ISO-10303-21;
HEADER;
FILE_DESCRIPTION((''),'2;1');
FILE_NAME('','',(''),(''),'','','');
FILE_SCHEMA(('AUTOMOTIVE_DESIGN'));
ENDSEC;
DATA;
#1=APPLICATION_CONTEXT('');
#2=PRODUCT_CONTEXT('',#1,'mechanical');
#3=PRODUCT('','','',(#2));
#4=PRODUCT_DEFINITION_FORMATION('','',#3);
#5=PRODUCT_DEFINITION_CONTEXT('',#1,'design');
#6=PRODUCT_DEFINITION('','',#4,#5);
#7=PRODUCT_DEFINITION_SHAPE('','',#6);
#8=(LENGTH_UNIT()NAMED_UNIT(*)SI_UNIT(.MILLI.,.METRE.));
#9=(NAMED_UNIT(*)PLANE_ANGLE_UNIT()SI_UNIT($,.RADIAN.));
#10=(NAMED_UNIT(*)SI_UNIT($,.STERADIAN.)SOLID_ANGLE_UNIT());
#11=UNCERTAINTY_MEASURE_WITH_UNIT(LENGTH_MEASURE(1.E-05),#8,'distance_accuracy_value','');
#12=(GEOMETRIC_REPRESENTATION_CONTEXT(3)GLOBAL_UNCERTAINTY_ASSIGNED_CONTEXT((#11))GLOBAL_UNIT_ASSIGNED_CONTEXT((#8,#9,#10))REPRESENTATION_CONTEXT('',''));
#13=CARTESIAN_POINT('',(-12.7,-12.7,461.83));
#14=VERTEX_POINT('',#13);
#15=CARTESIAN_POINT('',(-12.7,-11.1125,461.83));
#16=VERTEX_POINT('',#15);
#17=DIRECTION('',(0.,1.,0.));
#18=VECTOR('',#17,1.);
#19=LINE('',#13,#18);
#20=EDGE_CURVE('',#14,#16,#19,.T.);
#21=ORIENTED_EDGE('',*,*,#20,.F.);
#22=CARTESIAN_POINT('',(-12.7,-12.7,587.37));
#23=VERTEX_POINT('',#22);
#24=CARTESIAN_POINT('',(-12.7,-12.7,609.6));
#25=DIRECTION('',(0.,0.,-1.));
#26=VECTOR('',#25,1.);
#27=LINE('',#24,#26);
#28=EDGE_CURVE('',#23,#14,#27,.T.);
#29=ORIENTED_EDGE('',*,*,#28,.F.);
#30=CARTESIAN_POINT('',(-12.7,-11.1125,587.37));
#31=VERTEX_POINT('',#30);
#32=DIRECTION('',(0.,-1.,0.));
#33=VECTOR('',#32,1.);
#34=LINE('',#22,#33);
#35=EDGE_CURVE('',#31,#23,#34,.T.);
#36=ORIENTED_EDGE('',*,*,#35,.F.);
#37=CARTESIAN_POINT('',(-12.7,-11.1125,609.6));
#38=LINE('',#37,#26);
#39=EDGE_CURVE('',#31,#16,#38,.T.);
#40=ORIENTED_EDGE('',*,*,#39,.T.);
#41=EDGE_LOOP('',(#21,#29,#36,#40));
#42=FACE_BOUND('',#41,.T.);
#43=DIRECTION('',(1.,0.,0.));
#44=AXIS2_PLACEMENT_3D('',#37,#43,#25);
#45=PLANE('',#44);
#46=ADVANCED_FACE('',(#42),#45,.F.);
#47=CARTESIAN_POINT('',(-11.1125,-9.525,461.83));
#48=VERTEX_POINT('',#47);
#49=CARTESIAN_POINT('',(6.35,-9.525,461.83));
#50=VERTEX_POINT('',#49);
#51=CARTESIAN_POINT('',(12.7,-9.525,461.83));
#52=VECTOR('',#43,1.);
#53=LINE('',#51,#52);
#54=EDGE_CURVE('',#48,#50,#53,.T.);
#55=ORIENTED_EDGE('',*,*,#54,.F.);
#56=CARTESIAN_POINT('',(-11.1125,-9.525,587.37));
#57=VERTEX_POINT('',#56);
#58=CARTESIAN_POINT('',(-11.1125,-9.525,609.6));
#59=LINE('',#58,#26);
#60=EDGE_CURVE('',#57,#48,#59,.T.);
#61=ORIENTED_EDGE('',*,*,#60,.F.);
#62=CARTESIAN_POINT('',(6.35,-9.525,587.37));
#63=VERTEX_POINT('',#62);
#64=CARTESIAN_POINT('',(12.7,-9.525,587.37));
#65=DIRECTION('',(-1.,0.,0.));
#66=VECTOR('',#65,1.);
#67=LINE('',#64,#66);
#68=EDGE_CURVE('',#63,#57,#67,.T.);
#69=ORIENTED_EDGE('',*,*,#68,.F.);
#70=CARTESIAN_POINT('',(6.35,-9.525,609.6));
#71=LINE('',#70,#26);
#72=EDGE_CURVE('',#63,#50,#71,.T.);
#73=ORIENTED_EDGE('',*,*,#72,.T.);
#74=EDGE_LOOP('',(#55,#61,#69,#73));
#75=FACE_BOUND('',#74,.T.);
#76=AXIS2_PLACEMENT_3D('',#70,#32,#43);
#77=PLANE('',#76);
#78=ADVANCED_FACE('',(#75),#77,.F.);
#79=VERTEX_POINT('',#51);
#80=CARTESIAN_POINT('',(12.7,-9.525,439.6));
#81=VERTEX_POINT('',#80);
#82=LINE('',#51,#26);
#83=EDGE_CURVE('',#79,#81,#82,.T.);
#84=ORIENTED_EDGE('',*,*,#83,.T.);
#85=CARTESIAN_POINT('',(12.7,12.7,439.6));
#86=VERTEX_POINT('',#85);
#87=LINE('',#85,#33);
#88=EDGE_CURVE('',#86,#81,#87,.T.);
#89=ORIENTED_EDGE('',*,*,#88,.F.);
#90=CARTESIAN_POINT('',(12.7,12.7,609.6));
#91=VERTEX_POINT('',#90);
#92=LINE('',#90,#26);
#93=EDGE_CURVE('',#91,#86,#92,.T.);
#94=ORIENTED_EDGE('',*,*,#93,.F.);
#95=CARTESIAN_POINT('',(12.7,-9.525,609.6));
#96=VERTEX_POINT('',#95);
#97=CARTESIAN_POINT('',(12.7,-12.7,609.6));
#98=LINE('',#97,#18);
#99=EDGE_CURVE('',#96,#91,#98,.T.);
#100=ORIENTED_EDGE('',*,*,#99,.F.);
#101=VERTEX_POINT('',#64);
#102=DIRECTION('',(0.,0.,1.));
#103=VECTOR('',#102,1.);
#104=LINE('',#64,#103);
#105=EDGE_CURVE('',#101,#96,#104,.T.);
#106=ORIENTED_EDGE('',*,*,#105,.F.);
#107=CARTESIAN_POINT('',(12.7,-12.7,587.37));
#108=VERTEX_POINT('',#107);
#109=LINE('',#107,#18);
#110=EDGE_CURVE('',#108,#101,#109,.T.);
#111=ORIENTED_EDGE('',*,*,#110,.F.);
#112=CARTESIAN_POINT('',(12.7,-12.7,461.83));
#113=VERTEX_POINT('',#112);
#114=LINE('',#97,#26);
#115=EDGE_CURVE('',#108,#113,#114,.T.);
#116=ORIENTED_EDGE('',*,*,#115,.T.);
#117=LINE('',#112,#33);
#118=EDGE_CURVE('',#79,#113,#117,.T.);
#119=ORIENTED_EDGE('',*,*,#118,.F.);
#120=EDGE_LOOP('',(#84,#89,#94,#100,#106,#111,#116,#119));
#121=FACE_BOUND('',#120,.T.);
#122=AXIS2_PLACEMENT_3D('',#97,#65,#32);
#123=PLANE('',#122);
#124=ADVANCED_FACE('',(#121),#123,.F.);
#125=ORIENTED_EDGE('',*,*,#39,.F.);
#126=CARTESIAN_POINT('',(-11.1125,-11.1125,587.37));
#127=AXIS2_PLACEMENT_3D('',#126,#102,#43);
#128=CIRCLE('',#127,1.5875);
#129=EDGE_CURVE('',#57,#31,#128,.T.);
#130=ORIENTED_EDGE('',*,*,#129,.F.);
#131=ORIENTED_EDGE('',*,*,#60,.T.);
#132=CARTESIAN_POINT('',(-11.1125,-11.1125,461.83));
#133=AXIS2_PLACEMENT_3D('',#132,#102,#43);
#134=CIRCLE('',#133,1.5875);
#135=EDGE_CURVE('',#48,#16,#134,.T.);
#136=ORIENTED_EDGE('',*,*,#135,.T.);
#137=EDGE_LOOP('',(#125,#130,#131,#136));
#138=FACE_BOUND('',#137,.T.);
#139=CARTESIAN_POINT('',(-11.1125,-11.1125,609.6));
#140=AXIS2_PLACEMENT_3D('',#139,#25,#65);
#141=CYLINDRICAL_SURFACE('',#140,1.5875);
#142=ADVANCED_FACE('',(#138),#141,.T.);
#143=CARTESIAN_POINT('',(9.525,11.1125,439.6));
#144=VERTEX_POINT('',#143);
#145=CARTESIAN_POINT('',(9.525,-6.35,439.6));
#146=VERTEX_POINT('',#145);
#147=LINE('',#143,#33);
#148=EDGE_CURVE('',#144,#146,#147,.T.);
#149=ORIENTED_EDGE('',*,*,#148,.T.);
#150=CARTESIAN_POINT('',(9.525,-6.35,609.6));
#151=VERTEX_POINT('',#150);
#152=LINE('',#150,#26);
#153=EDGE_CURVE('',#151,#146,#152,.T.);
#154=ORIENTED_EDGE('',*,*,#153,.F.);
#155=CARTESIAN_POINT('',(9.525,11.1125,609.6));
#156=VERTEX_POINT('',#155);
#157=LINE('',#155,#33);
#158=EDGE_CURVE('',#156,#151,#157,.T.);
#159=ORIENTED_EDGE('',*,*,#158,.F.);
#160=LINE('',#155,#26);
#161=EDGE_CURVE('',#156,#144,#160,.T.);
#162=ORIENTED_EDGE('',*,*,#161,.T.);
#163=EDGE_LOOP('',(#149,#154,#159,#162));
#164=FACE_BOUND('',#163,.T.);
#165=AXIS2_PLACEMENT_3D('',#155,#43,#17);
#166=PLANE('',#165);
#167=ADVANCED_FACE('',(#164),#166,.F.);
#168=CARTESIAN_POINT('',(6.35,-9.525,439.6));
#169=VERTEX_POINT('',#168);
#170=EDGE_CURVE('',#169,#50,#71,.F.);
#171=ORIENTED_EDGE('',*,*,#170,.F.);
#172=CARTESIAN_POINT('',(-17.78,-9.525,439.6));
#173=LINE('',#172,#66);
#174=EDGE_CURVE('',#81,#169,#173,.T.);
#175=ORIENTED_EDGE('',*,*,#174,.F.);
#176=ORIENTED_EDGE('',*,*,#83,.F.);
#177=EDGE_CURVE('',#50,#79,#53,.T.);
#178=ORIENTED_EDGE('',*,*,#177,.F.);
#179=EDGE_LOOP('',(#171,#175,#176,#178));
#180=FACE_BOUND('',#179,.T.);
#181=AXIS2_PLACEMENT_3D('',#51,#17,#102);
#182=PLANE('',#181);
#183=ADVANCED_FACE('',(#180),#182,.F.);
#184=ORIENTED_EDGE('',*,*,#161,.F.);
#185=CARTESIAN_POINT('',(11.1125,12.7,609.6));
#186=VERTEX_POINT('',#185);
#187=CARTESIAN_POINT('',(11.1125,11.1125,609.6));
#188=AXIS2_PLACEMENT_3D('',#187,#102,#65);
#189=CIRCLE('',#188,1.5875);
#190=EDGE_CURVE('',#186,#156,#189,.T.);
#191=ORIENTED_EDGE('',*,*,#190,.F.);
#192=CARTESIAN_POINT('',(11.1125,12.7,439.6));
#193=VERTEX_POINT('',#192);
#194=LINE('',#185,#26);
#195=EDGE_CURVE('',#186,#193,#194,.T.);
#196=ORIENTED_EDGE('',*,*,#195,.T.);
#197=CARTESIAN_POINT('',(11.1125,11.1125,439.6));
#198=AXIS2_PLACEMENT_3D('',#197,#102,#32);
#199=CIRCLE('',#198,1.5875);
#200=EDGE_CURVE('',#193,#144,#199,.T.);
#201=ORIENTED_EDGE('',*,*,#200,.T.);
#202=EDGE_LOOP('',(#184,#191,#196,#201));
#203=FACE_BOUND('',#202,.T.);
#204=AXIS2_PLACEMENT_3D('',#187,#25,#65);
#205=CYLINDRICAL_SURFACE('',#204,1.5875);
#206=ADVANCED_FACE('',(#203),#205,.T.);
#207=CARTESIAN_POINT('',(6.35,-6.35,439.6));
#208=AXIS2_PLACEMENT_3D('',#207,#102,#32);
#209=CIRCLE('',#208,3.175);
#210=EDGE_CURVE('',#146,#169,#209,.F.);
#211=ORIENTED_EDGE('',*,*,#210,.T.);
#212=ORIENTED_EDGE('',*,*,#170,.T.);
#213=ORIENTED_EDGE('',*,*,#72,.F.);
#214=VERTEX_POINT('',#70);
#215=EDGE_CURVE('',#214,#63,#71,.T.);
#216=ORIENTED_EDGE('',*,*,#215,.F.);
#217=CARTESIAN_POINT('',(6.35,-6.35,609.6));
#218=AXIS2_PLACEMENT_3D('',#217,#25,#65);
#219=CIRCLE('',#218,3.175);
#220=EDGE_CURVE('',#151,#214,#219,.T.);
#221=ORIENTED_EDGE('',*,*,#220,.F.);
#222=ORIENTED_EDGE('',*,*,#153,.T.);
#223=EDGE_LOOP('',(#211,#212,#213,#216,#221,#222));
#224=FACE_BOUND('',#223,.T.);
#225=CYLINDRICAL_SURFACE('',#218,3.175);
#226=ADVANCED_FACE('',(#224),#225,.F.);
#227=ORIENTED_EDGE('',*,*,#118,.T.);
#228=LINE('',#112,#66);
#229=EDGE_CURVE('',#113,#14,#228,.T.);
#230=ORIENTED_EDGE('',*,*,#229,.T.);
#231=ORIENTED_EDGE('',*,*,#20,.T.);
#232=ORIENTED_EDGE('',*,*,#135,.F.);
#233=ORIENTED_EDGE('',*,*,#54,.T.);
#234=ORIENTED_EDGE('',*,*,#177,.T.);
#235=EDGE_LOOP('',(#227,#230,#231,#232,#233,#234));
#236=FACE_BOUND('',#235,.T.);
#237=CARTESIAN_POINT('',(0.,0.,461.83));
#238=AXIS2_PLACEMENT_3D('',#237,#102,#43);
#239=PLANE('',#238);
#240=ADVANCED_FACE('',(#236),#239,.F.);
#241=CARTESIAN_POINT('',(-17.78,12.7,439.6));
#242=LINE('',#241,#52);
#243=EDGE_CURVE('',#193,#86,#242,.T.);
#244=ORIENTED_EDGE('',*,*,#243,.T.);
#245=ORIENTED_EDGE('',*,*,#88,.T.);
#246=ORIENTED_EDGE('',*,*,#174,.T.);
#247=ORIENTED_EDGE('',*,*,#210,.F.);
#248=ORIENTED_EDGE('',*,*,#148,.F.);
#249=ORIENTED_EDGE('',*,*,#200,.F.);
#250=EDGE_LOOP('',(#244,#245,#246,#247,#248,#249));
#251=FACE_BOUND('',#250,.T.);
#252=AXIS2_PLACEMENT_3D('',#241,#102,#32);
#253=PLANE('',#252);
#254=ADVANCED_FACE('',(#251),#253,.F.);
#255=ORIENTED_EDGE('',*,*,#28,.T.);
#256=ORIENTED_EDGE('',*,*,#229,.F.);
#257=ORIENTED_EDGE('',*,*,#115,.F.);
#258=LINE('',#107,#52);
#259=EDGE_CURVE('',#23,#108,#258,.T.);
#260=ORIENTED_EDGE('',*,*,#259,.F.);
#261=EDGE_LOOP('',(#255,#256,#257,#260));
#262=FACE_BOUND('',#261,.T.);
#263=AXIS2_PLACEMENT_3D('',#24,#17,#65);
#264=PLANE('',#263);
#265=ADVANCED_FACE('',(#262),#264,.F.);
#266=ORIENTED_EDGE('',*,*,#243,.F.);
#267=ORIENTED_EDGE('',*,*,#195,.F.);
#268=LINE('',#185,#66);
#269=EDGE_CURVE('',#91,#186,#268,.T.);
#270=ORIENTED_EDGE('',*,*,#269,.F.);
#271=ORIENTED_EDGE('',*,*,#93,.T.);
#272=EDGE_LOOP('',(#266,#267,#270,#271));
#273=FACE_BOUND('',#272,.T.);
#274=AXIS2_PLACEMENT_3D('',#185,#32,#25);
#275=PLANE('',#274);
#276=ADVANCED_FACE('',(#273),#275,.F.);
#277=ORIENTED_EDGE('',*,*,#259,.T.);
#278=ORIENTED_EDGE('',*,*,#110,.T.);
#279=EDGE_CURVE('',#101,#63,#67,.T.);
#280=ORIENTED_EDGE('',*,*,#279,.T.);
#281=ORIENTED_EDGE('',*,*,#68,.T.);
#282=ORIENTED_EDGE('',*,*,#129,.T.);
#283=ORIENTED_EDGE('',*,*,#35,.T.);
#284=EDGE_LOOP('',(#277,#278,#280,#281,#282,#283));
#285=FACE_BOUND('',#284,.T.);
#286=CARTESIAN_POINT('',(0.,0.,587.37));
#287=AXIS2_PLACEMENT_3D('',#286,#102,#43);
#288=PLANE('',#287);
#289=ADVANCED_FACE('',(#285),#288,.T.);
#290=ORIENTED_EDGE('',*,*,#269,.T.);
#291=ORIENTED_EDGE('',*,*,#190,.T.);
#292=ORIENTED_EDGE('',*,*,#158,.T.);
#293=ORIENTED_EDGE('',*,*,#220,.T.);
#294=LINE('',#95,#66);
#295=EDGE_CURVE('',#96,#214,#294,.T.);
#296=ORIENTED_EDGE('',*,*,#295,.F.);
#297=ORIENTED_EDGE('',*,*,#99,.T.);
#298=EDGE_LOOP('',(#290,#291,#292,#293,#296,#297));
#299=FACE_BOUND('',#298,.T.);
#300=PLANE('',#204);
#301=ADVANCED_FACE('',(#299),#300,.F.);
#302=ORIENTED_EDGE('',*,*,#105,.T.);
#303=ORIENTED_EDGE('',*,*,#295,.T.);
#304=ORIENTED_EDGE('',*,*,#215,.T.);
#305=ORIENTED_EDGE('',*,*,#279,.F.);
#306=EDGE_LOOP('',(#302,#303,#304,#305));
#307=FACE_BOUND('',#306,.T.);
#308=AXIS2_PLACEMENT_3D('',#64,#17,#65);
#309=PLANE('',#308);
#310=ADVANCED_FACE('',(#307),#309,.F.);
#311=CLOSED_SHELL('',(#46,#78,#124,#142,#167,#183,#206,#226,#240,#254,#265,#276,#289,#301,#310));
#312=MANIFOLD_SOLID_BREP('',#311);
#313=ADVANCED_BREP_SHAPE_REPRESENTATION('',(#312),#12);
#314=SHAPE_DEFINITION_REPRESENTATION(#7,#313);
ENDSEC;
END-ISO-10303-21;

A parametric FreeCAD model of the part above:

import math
import FreeCAD as App
import Part
import Sketcher
Q = App.Units.Quantity


def add_polygon(sketch, points):
    """Adds a closed chain of lines whose ends are joined by coincident constraints."""
    first, n = sketch.GeometryCount, len(points)
    for a, b in zip(points, points[1:] + points[:1]):
        sketch.addGeometry(Part.LineSegment(App.Vector(*a, 0), App.Vector(*b, 0)), False)
    for i in range(n):
        sketch.addConstraint(Sketcher.Constraint("Coincident", first + i, 2, first + (i + 1) % n, 1))

doc = App.newDocument("Part")
body = doc.addObject("PartDesign::Body", "Body")

sketch1 = body.newObject("Sketcher::SketchObject", "Sketch")
sketch1.AttachmentSupport = (doc.getObject("XY_Plane"), [""])
sketch1.MapMode = "FlatFace"
sketch1.addGeometry([
    Part.LineSegment(App.Vector(-12.7, -12.7, 0), App.Vector(12.7, -12.7, 0)),
    Part.LineSegment(App.Vector(12.7, -12.7, 0), App.Vector(12.7, 12.7, 0)),
    Part.LineSegment(App.Vector(12.7, 12.7, 0), App.Vector(11.1125, 12.7, 0)),
    Part.ArcOfCircle(Part.Circle(App.Vector(11.1125, 11.1125, 0), App.Vector(0, 0, 1), 1.5875), math.radians(90), math.radians(180)),
    Part.LineSegment(App.Vector(9.525, 11.1125, 0), App.Vector(9.525, -6.35, 0)),
    Part.ArcOfCircle(Part.Circle(App.Vector(6.35, -6.35, 0), App.Vector(0, 0, 1), 3.175), math.radians(-90), math.radians(0)),
    Part.LineSegment(App.Vector(6.35, -9.525, 0), App.Vector(-11.1125, -9.525, 0)),
    Part.ArcOfCircle(Part.Circle(App.Vector(-11.1125, -11.1125, 0), App.Vector(0, 0, 1), 1.5875), math.radians(90), math.radians(180)),
    Part.LineSegment(App.Vector(-12.7, -11.1125, 0), App.Vector(-12.7, -12.7, 0)),
], False)
sketch1.addConstraint([
    Sketcher.Constraint("Coincident", 0, 2, 1, 1),
    Sketcher.Constraint("Coincident", 1, 2, 2, 1),
    Sketcher.Constraint("Tangent", 2, 2, 3, 1),
    Sketcher.Constraint("Tangent", 3, 2, 4, 1),
    Sketcher.Constraint("Tangent", 4, 2, 5, 2),
    Sketcher.Constraint("Tangent", 5, 1, 6, 1),
    Sketcher.Constraint("Tangent", 6, 2, 7, 1),
    Sketcher.Constraint("Tangent", 7, 2, 8, 1),
    Sketcher.Constraint("Coincident", 8, 2, 0, 1),
    Sketcher.Constraint("Horizontal", 0),
    Sketcher.Constraint("Vertical", 1),
    Sketcher.Constraint("Horizontal", 2),
    Sketcher.Constraint("Vertical", 4),
    Sketcher.Constraint("Horizontal", 6),
    Sketcher.Constraint("Vertical", 8),
    Sketcher.Constraint("Equal", 3, 7),
    Sketcher.Constraint("Symmetric", 3, 3, 7, 3, -1, 1),
    Sketcher.Constraint("Symmetric", 1, 2, 8, 2, -1, 1),
    Sketcher.Constraint("Equal", 0, 1),
    Sketcher.Constraint("DistanceX", 0, 1, 0, 2, Q("1 in")),
    Sketcher.Constraint("Radius", 3, Q("0.0625 in")),
    Sketcher.Constraint("Radius", 5, Q("0.125 in")),
])
pad1 = body.newObject("PartDesign::Pad", "Pad")
pad1.Profile = sketch1
pad1.Length = Q("48 in")
pad1.Midplane = True

sketch2 = body.newObject("Sketcher::SketchObject", "Sketch001")
sketch2.AttachmentSupport = (doc.getObject("YZ_Plane"), [""])
sketch2.MapMode = "FlatFace"
sketch2.AttachmentOffset = App.Placement(App.Vector(0, 0, 0.5 * 25.4), App.Rotation())
add_polygon(sketch2, [(12.7, 439.6), (-12.7, 439.6), (-12.7, -609.6), (12.7, -609.6)])
sketch2.addConstraint([
    Sketcher.Constraint("Horizontal", 0),
    Sketcher.Constraint("Vertical", 1),
    Sketcher.Constraint("Horizontal", 2),
    Sketcher.Constraint("Vertical", 3),
    Sketcher.Constraint("DistanceX", 0, 2, 0, 1, Q("1 in")),
    Sketcher.Constraint("DistanceY", 1, 2, -1, 1, Q("24 in")),
    Sketcher.Constraint("DistanceX", 0, 2, -1, 1, Q("0.5 in")),
    Sketcher.Constraint("DistanceY", 1, 2, 1, 1, 1049.2),
])
pocket1 = body.newObject("PartDesign::Pocket", "Pocket")
pocket1.Profile = sketch2
pocket1.Length = Q("1.2 in")

sketch3 = body.newObject("Sketcher::SketchObject", "Sketch002")
sketch3.AttachmentSupport = (doc.getObject("XY_Plane"), [""])
sketch3.MapMode = "FlatFace"
sketch3.AttachmentOffset = App.Placement(App.Vector(0, 0, 439.6), App.Rotation())
add_polygon(sketch3, [(12.7, -9.525), (12.7, -12.7), (-12.7, -12.7), (-12.7, -9.525)])
sketch3.addConstraint([
    Sketcher.Constraint("Vertical", 0),
    Sketcher.Constraint("Horizontal", 1),
    Sketcher.Constraint("Vertical", 2),
    Sketcher.Constraint("Horizontal", 3),
    Sketcher.Constraint("DistanceX", 1, 2, 1, 1, Q("1 in")),
    Sketcher.Constraint("DistanceX", -1, 1, 0, 2, Q("0.5 in")),
    Sketcher.Constraint("DistanceY", 0, 2, -1, 1, Q("0.5 in")),
    Sketcher.Constraint("DistanceY", 0, 2, 0, 1, Q("0.125 in")),
])
pocket2 = body.newObject("PartDesign::Pocket", "Pocket001")
pocket2.Profile = sketch3
pocket2.Length = 22.23
pocket2.Reversed = True

sketch4 = body.newObject("Sketcher::SketchObject", "Sketch003")
sketch4.AttachmentSupport = (doc.getObject("XY_Plane"), [""])
sketch4.MapMode = "FlatFace"
sketch4.AttachmentOffset = App.Placement(App.Vector(0, 0, 24 * 25.4), App.Rotation())
add_polygon(sketch4, [(-12.7, -9.525), (-12.7, -12.7), (12.7, -12.7), (12.7, -9.525)])
sketch4.addConstraint([
    Sketcher.Constraint("Vertical", 0),
    Sketcher.Constraint("Horizontal", 1),
    Sketcher.Constraint("Vertical", 2),
    Sketcher.Constraint("Horizontal", 3),
    Sketcher.Constraint("DistanceX", 1, 1, 1, 2, Q("1 in")),
    Sketcher.Constraint("DistanceX", 0, 2, -1, 1, Q("0.5 in")),
    Sketcher.Constraint("DistanceY", 0, 2, -1, 1, Q("0.5 in")),
    Sketcher.Constraint("DistanceY", 0, 2, 0, 1, Q("0.125 in")),
])
pocket3 = body.newObject("PartDesign::Pocket", "Pocket002")
pocket3.Profile = sketch4
pocket3.Length = 22.23

doc.recompute()
